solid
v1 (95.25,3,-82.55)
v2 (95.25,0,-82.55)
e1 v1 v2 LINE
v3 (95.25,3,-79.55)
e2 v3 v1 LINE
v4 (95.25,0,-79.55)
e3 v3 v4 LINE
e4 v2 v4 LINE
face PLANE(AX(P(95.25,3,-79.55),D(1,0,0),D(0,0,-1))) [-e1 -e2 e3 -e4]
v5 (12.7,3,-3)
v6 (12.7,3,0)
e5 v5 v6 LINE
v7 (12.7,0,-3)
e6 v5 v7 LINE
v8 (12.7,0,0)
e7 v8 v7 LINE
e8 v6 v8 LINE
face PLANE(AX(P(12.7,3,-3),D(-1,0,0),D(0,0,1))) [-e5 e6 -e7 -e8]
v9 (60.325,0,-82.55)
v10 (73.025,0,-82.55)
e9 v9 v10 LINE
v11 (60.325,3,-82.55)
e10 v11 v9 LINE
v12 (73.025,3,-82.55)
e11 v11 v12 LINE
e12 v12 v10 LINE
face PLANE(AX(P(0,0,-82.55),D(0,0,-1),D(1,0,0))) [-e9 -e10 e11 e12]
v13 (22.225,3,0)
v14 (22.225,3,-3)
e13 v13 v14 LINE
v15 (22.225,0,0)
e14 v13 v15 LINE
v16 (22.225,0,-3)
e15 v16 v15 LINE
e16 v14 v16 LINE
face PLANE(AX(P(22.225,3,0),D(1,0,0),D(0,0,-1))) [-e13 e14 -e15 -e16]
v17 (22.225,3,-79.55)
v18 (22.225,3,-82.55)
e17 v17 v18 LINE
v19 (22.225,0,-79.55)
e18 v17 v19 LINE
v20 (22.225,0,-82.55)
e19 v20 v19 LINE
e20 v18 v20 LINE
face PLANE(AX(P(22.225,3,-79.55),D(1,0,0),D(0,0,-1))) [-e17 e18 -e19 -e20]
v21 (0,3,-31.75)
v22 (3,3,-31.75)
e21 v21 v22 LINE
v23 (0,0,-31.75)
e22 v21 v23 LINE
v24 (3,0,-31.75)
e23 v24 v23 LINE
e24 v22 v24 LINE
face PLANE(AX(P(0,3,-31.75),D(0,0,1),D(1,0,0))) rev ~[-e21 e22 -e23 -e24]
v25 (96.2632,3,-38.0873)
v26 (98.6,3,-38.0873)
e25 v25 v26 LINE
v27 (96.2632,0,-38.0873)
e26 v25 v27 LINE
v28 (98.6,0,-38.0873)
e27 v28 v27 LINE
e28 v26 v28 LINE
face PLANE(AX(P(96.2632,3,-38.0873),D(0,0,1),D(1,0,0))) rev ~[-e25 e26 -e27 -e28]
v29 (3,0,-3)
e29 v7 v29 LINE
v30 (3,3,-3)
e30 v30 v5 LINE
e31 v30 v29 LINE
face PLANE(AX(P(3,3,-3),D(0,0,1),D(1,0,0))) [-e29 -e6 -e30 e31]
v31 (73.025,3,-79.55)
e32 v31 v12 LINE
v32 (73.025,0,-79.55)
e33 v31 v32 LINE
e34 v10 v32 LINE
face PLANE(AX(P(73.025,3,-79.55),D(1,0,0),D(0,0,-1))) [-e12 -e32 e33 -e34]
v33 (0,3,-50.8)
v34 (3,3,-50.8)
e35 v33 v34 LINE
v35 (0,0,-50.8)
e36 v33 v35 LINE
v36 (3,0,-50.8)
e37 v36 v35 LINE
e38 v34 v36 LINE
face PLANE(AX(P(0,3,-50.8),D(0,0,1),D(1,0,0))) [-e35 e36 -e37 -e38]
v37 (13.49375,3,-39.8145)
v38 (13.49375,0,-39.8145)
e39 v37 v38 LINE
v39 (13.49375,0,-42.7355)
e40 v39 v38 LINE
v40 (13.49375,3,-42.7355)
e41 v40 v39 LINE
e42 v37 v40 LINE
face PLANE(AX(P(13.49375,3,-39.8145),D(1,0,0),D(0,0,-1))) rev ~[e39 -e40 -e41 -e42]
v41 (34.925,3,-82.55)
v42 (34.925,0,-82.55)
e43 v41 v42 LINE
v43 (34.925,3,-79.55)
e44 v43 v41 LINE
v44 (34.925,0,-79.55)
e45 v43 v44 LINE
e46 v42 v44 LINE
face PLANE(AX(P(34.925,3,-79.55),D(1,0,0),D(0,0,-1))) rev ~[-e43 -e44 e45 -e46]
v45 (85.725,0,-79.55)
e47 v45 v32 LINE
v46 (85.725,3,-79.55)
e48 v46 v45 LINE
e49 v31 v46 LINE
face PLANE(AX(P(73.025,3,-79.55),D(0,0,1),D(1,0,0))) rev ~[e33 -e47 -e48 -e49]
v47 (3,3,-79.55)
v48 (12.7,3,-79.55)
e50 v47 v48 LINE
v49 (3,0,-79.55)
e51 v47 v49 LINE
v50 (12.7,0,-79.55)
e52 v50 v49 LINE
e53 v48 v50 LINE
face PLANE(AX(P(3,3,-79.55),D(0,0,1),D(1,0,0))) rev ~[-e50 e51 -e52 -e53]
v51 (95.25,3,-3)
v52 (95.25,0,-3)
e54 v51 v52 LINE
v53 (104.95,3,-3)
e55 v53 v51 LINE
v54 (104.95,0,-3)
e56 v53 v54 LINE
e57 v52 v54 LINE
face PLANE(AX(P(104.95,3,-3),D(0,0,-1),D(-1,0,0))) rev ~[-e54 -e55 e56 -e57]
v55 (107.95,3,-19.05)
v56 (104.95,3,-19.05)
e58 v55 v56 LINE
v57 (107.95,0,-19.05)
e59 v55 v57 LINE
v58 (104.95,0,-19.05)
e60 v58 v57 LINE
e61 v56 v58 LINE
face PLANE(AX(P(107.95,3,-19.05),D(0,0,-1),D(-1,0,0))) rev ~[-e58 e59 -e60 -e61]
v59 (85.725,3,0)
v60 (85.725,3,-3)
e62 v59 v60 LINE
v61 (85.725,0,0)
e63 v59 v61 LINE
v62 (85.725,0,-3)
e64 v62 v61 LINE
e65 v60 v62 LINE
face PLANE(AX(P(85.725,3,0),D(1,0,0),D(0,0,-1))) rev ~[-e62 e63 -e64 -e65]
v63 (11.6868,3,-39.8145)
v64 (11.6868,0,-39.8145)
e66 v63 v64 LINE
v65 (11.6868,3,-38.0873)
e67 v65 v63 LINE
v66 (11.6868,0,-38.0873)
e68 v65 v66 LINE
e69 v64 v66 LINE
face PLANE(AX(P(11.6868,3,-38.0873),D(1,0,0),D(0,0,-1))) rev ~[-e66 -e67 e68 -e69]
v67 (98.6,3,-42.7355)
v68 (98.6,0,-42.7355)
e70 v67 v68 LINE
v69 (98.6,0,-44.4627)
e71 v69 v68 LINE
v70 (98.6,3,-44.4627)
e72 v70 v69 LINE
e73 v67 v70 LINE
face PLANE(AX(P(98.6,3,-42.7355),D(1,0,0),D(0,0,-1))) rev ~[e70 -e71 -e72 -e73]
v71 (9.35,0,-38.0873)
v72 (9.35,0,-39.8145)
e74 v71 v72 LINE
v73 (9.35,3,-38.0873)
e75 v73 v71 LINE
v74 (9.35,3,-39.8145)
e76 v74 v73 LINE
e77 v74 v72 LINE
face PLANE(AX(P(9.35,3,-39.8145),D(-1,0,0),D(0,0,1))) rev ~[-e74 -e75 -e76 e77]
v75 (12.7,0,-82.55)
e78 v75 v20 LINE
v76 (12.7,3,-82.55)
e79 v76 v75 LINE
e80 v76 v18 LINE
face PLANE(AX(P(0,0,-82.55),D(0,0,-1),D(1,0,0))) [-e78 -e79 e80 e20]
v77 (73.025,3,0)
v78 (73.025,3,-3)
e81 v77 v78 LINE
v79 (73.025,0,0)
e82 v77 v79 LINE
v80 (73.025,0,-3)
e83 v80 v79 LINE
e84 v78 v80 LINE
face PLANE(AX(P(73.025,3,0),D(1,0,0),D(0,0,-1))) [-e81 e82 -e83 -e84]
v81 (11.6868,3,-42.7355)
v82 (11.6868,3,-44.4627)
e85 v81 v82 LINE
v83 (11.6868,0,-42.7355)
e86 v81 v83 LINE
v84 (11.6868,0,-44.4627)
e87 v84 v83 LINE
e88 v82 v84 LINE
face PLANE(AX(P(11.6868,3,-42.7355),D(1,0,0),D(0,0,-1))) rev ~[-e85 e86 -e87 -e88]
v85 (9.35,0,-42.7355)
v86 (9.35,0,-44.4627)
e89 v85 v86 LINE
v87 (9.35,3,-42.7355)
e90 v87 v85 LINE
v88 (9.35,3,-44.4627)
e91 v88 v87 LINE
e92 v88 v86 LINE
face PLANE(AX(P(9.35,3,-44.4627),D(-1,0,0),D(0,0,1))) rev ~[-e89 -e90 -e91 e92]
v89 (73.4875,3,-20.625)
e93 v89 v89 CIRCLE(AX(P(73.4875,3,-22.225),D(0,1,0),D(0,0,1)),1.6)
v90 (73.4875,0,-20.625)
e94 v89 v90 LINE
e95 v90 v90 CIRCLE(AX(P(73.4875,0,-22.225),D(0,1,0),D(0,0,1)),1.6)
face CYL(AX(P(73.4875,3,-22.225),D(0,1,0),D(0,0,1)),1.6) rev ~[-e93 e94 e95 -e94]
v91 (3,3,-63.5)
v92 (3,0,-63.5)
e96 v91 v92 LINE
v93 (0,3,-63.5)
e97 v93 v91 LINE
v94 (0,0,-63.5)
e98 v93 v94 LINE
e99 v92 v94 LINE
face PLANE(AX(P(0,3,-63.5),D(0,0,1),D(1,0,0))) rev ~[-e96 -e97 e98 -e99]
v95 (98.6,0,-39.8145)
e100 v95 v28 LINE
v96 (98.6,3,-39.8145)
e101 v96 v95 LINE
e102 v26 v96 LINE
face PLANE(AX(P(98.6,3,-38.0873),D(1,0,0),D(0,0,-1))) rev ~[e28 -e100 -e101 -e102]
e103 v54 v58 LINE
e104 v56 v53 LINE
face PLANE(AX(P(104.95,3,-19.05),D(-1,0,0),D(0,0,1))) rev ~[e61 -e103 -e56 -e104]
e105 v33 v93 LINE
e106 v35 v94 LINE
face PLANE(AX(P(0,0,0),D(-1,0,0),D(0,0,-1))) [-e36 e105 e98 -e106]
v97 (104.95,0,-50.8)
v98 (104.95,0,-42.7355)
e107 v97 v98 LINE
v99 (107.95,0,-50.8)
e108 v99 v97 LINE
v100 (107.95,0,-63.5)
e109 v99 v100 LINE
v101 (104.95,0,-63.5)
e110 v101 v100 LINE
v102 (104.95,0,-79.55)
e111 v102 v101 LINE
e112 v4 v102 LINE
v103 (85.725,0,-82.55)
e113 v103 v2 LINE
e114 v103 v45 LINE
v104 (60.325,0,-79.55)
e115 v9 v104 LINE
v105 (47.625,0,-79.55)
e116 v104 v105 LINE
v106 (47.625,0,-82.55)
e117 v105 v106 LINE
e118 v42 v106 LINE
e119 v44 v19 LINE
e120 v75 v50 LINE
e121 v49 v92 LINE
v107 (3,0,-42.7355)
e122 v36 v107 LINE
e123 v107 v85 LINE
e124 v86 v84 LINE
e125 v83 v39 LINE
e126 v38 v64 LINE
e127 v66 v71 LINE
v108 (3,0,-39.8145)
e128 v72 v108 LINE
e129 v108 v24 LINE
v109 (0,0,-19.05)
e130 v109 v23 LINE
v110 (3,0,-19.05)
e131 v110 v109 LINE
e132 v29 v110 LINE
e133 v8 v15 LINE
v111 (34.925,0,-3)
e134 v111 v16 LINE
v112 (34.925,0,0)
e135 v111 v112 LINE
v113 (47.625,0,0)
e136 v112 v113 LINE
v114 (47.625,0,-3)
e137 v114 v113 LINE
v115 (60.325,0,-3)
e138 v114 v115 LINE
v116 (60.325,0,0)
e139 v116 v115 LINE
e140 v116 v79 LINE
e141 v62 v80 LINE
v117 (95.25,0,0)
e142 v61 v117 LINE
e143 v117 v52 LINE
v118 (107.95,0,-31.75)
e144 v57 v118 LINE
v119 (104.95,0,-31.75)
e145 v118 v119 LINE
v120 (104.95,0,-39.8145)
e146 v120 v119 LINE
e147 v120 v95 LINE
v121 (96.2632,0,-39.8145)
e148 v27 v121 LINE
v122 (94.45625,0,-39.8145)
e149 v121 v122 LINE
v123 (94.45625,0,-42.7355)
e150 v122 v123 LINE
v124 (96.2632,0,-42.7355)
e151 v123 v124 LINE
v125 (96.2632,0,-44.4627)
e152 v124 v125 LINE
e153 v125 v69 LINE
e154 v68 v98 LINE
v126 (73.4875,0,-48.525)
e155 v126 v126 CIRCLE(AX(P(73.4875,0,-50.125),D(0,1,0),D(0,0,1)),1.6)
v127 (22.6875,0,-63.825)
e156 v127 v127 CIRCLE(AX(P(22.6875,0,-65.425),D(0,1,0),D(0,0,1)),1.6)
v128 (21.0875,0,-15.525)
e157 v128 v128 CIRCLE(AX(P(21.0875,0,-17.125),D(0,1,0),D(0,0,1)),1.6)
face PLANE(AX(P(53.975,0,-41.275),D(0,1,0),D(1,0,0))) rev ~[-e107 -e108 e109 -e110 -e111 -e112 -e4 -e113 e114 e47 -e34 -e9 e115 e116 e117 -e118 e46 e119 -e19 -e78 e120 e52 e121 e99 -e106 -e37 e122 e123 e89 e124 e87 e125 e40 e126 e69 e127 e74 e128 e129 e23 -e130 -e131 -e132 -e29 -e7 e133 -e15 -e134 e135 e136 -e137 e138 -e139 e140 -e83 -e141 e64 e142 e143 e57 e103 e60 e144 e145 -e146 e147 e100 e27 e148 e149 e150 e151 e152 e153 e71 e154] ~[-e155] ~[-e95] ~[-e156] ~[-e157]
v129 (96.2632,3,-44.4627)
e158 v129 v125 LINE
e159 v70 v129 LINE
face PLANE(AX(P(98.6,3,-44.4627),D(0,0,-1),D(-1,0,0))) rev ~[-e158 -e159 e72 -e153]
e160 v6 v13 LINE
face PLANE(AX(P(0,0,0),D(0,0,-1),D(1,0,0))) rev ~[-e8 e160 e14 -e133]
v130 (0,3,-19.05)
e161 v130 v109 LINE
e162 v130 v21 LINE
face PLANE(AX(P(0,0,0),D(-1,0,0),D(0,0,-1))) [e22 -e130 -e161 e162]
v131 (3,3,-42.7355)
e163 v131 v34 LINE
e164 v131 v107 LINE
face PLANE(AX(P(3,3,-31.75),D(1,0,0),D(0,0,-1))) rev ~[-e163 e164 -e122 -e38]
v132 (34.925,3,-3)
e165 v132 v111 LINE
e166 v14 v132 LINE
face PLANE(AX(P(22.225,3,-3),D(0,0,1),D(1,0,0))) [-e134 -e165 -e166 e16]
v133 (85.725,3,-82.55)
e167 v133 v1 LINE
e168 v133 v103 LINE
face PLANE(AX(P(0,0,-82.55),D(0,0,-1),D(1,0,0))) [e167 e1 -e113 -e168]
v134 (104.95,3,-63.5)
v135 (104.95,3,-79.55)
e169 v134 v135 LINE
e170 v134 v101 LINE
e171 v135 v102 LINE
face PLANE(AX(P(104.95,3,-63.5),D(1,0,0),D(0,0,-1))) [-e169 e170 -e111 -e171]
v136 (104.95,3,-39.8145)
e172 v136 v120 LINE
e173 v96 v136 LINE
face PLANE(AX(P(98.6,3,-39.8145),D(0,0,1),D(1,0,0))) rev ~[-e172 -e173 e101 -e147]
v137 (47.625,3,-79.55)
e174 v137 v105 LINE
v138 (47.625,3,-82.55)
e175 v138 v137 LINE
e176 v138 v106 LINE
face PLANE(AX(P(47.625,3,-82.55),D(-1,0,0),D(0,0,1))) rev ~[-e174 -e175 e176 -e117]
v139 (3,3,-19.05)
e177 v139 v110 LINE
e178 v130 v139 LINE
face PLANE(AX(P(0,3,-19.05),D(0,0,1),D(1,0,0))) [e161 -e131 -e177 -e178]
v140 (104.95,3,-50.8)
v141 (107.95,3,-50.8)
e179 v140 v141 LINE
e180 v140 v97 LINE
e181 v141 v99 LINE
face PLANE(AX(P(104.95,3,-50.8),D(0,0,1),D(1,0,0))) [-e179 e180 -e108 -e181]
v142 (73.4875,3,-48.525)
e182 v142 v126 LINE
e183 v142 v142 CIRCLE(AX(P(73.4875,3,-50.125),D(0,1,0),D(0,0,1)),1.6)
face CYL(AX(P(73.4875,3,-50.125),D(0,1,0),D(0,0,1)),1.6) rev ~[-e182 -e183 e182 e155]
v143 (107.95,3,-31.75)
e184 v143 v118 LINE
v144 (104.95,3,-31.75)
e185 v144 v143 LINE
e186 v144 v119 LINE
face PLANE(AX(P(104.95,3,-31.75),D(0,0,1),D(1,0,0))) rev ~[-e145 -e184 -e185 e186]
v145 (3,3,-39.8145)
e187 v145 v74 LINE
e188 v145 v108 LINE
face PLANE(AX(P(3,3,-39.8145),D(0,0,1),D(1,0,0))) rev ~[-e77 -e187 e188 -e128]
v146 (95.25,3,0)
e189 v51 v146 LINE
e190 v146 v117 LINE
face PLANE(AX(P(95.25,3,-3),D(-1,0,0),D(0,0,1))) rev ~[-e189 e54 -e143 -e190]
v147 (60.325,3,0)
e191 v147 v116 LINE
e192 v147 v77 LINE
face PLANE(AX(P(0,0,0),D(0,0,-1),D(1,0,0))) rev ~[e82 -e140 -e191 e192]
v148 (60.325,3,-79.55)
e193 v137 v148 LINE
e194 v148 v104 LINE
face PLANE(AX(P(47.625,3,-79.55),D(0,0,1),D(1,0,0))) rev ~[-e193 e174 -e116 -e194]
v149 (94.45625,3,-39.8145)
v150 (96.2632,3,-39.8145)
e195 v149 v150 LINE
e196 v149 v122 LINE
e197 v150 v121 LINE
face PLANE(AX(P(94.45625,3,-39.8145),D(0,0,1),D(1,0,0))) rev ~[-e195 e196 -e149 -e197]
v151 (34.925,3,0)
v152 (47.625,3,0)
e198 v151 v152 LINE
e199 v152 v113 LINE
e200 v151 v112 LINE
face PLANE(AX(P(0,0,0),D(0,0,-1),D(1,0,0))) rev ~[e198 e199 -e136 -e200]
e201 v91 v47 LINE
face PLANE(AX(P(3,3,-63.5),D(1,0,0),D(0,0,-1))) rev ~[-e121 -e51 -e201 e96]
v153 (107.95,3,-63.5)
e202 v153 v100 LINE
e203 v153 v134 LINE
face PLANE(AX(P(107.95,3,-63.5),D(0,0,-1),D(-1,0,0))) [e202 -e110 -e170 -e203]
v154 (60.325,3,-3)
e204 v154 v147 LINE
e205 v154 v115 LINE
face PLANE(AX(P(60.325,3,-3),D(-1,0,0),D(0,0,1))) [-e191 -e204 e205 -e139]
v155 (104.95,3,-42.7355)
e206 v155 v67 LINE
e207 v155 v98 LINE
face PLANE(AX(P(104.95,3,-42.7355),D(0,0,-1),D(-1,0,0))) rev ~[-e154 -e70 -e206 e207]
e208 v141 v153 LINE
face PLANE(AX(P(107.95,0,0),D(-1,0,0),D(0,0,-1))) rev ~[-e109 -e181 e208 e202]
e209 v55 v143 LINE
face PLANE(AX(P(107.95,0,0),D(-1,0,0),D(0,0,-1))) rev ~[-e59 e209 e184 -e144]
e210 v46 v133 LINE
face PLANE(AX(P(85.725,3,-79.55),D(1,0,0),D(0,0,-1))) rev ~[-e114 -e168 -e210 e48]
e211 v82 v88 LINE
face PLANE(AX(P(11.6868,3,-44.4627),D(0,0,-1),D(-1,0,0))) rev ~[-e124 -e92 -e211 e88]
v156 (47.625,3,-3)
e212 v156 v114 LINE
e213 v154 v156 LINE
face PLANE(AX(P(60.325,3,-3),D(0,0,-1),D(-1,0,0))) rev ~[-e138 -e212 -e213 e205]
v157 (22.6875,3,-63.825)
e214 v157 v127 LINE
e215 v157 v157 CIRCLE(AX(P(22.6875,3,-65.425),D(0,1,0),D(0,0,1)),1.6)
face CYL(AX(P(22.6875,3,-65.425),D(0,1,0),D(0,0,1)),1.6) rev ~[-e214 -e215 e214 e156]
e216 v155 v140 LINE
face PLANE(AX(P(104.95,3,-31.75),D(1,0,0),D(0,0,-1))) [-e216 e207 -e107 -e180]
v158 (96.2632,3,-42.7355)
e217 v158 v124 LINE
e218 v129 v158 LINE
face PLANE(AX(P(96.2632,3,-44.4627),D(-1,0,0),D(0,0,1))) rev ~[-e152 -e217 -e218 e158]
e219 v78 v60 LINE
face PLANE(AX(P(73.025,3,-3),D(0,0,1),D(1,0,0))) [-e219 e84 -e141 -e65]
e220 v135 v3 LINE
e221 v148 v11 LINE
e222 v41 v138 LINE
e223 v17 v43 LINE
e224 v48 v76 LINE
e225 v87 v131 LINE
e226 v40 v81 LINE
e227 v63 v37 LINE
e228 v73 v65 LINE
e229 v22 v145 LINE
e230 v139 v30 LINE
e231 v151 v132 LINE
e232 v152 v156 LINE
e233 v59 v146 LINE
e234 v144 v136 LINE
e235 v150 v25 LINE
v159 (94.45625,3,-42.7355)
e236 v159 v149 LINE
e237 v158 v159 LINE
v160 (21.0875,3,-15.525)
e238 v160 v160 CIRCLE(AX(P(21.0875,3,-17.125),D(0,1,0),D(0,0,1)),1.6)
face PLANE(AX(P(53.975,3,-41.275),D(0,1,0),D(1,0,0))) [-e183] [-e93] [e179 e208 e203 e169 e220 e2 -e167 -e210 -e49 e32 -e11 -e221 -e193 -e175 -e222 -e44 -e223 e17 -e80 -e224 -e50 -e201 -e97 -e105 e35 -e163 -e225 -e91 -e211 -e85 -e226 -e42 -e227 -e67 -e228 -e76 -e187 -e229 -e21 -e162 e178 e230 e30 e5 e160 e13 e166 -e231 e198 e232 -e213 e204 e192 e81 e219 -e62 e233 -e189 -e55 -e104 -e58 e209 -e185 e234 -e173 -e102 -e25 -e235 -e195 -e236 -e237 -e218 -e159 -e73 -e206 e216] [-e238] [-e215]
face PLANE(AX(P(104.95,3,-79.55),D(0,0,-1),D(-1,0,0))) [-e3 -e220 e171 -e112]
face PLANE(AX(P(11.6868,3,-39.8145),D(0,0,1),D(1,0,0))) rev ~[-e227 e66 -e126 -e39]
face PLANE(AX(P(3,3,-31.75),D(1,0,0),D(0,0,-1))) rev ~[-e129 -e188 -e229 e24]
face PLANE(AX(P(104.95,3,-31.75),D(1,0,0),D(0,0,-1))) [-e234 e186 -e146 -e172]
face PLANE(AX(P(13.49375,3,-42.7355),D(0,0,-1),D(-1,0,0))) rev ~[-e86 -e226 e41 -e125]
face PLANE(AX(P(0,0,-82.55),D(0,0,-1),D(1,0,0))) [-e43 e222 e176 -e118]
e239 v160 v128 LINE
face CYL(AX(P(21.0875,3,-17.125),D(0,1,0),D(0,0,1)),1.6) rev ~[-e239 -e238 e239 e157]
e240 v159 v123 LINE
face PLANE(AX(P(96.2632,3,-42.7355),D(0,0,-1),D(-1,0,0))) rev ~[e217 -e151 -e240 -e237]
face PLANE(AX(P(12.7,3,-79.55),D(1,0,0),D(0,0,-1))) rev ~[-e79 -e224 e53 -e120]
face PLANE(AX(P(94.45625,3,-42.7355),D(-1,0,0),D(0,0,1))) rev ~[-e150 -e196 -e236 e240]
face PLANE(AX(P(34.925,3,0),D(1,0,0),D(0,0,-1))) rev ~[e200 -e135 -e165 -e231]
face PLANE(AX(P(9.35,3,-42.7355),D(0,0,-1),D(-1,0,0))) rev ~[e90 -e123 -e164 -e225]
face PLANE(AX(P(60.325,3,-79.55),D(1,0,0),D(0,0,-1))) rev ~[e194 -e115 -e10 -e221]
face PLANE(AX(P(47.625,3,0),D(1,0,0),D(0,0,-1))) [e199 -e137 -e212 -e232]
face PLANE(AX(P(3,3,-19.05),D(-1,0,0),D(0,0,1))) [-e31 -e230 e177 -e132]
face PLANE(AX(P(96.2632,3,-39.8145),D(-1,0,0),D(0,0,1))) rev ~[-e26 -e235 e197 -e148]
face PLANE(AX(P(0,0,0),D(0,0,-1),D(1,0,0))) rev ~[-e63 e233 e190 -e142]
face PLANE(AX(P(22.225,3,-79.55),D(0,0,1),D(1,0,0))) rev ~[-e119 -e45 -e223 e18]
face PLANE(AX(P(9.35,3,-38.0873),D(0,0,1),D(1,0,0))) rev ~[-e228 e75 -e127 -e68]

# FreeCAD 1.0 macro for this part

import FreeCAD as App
import Part
import Sketcher

V = App.Vector
Q = App.Units.Quantity

doc = App.newDocument("Part")
body = doc.addObject("PartDesign::Body", "Body")

# Sketch on XZ plane
sketch1 = body.newObject("Sketcher::SketchObject", "Sketch")
sketch1.AttachmentSupport = (doc.getObject("XZ_Plane"), [""])
sketch1.MapMode = "FlatFace"
sketch1.addGeometry([
    Part.LineSegment(V(0, -82.55, 0), V(0, 0, 0)),
    Part.LineSegment(V(0, 0, 0), V(107.95, 0, 0)),
    Part.LineSegment(V(107.95, 0, 0), V(107.95, -82.55, 0)),
    Part.LineSegment(V(107.95, -82.55, 0), V(0, -82.55, 0)),
], False)
sketch1.addConstraint([
    Sketcher.Constraint("Coincident", 0, 2, 1, 1),
    Sketcher.Constraint("Coincident", 1, 2, 2, 1),
    Sketcher.Constraint("Coincident", 2, 2, 3, 1),
    Sketcher.Constraint("Coincident", 3, 2, 0, 1),
    Sketcher.Constraint("Vertical", 0),
    Sketcher.Constraint("Horizontal", 1),
    Sketcher.Constraint("Vertical", 2),
    Sketcher.Constraint("Horizontal", 3),
    Sketcher.Constraint("Coincident", 0, 2, -1, 1),
    Sketcher.Constraint("DistanceX", 1, 1, 1, 2, Q("4.25 in")),
    Sketcher.Constraint("DistanceY", 0, 1, 0, 2, Q("3.25 in")),
])
pad1 = body.newObject("PartDesign::Pad", "Pad")
pad1.Profile = sketch1
pad1.Length = 3
pad1.Reversed = True

# Sketch on XZ plane
sketch2 = body.newObject("Sketcher::SketchObject", "Sketch001")
sketch2.AttachmentSupport = (doc.getObject("XZ_Plane"), [""])
sketch2.MapMode = "FlatFace"
sketch2.AttachmentOffset = App.Placement(V(0, 0, -3), App.Rotation())
sketch2.addGeometry([
    Part.LineSegment(V(22.225, -3, 0), V(22.225, 0, 0)),
    Part.LineSegment(V(22.225, 0, 0), V(34.925, 0, 0)),
    Part.LineSegment(V(34.925, 0, 0), V(34.925, -3, 0)),
    Part.LineSegment(V(34.925, -3, 0), V(22.225, -3, 0)),
], False)
sketch2.addConstraint([
    Sketcher.Constraint("Coincident", 0, 2, 1, 1),
    Sketcher.Constraint("Coincident", 1, 2, 2, 1),
    Sketcher.Constraint("Coincident", 2, 2, 3, 1),
    Sketcher.Constraint("Coincident", 3, 2, 0, 1),
    Sketcher.Constraint("Vertical", 0),
    Sketcher.Constraint("Horizontal", 1),
    Sketcher.Constraint("Vertical", 2),
    Sketcher.Constraint("Horizontal", 3),
    Sketcher.Constraint("PointOnObject", 0, 2, -1),
    Sketcher.Constraint("DistanceX", 1, 1, 1, 2, Q("0.5 in")),
    Sketcher.Constraint("DistanceX", -1, 1, 0, 2, Q("0.875 in")),
    Sketcher.Constraint("DistanceY", 0, 1, 0, 2, 3.0),
])
pocket1 = body.newObject("PartDesign::Pocket", "Pocket")
pocket1.Profile = sketch2
pocket1.Type = "UpToFirst"
pocket1.Reversed = True

# Sketch on XZ plane
sketch3 = body.newObject("Sketcher::SketchObject", "Sketch002")
sketch3.AttachmentSupport = (doc.getObject("XZ_Plane"), [""])
sketch3.MapMode = "FlatFace"
sketch3.AttachmentOffset = App.Placement(V(0, 0, -3), App.Rotation())
sketch3.addGeometry([
    Part.LineSegment(V(73.025, -3, 0), V(73.025, 0, 0)),
    Part.LineSegment(V(73.025, 0, 0), V(85.725, 0, 0)),
    Part.LineSegment(V(85.725, 0, 0), V(85.725, -3, 0)),
    Part.LineSegment(V(85.725, -3, 0), V(73.025, -3, 0)),
], False)
sketch3.addConstraint([
    Sketcher.Constraint("Coincident", 0, 2, 1, 1),
    Sketcher.Constraint("Coincident", 1, 2, 2, 1),
    Sketcher.Constraint("Coincident", 2, 2, 3, 1),
    Sketcher.Constraint("Coincident", 3, 2, 0, 1),
    Sketcher.Constraint("Vertical", 0),
    Sketcher.Constraint("Horizontal", 1),
    Sketcher.Constraint("Vertical", 2),
    Sketcher.Constraint("Horizontal", 3),
    Sketcher.Constraint("PointOnObject", 0, 2, -1),
    Sketcher.Constraint("DistanceX", 1, 1, 1, 2, Q("0.5 in")),
    Sketcher.Constraint("DistanceX", -1, 1, 0, 2, Q("2.875 in")),
    Sketcher.Constraint("DistanceY", 0, 1, 0, 2, 3.0),
])
pocket2 = body.newObject("PartDesign::Pocket", "Pocket001")
pocket2.Profile = sketch3
pocket2.Type = "UpToFirst"
pocket2.Reversed = True

# Sketch on XZ plane
sketch4 = body.newObject("Sketcher::SketchObject", "Sketch003")
sketch4.AttachmentSupport = (doc.getObject("XZ_Plane"), [""])
sketch4.MapMode = "FlatFace"
sketch4.AttachmentOffset = App.Placement(V(0, 0, -3), App.Rotation())
sketch4.addGeometry([
    Part.LineSegment(V(73.025, -82.55, 0), V(73.025, -79.55, 0)),
    Part.LineSegment(V(73.025, -79.55, 0), V(85.725, -79.55, 0)),
    Part.LineSegment(V(85.725, -79.55, 0), V(85.725, -82.55, 0)),
    Part.LineSegment(V(85.725, -82.55, 0), V(73.025, -82.55, 0)),
], False)
sketch4.addConstraint([
    Sketcher.Constraint("Coincident", 0, 2, 1, 1),
    Sketcher.Constraint("Coincident", 1, 2, 2, 1),
    Sketcher.Constraint("Coincident", 2, 2, 3, 1),
    Sketcher.Constraint("Coincident", 3, 2, 0, 1),
    Sketcher.Constraint("Vertical", 0),
    Sketcher.Constraint("Horizontal", 1),
    Sketcher.Constraint("Vertical", 2),
    Sketcher.Constraint("Horizontal", 3),
    Sketcher.Constraint("DistanceX", 1, 1, 1, 2, Q("0.5 in")),
    Sketcher.Constraint("DistanceY", 2, 2, -1, 1, Q("3.25 in")),
    Sketcher.Constraint("DistanceX", -1, 1, 0, 2, Q("2.875 in")),
    Sketcher.Constraint("DistanceY", 0, 1, 0, 2, 3.0),
])
pocket3 = body.newObject("PartDesign::Pocket", "Pocket002")
pocket3.Profile = sketch4
pocket3.Type = "UpToFirst"
pocket3.Reversed = True

# Sketch on XZ plane
sketch5 = body.newObject("Sketcher::SketchObject", "Sketch004")
sketch5.AttachmentSupport = (doc.getObject("XZ_Plane"), [""])
sketch5.MapMode = "FlatFace"
sketch5.AttachmentOffset = App.Placement(V(0, 0, -3), App.Rotation())
sketch5.addGeometry([
    Part.LineSegment(V(0, -50.8, 0), V(0, -31.75, 0)),
    Part.LineSegment(V(0, -31.75, 0), V(3, -31.75, 0)),
    Part.LineSegment(V(3, -31.75, 0), V(3, -50.8, 0)),
    Part.LineSegment(V(3, -50.8, 0), V(0, -50.8, 0)),
], False)
sketch5.addConstraint([
    Sketcher.Constraint("Coincident", 0, 2, 1, 1),
    Sketcher.Constraint("Coincident", 1, 2, 2, 1),
    Sketcher.Constraint("Coincident", 2, 2, 3, 1),
    Sketcher.Constraint("Coincident", 3, 2, 0, 1),
    Sketcher.Constraint("Vertical", 0),
    Sketcher.Constraint("Horizontal", 1),
    Sketcher.Constraint("Vertical", 2),
    Sketcher.Constraint("Horizontal", 3),
    Sketcher.Constraint("PointOnObject", 0, 2, -2),
    Sketcher.Constraint("DistanceY", 2, 2, -1, 1, Q("2 in")),
    Sketcher.Constraint("DistanceY", 0, 1, 0, 2, Q("0.75 in")),
    Sketcher.Constraint("DistanceX", 1, 1, 1, 2, 3.0),
])
pocket4 = body.newObject("PartDesign::Pocket", "Pocket003")
pocket4.Profile = sketch5
pocket4.Type = "UpToFirst"
pocket4.Reversed = True

# Sketch on XZ plane
sketch6 = body.newObject("Sketcher::SketchObject", "Sketch005")
sketch6.AttachmentSupport = (doc.getObject("XZ_Plane"), [""])
sketch6.MapMode = "FlatFace"
sketch6.AttachmentOffset = App.Placement(V(0, 0, -3), App.Rotation())
sketch6.addGeometry([
    Part.LineSegment(V(22.225, -82.55, 0), V(22.225, -79.55, 0)),
    Part.LineSegment(V(22.225, -79.55, 0), V(34.925, -79.55, 0)),
    Part.LineSegment(V(34.925, -79.55, 0), V(34.925, -82.55, 0)),
    Part.LineSegment(V(34.925, -82.55, 0), V(22.225, -82.55, 0)),
], False)
sketch6.addConstraint([
    Sketcher.Constraint("Coincident", 0, 2, 1, 1),
    Sketcher.Constraint("Coincident", 1, 2, 2, 1),
    Sketcher.Constraint("Coincident", 2, 2, 3, 1),
    Sketcher.Constraint("Coincident", 3, 2, 0, 1),
    Sketcher.Constraint("Vertical", 0),
    Sketcher.Constraint("Horizontal", 1),
    Sketcher.Constraint("Vertical", 2),
    Sketcher.Constraint("Horizontal", 3),
    Sketcher.Constraint("DistanceX", 1, 1, 1, 2, Q("0.5 in")),
    Sketcher.Constraint("DistanceY", 2, 2, -1, 1, Q("3.25 in")),
    Sketcher.Constraint("DistanceX", -1, 1, 0, 2, Q("0.875 in")),
    Sketcher.Constraint("DistanceY", 0, 1, 0, 2, 3.0),
])
pocket5 = body.newObject("PartDesign::Pocket", "Pocket004")
pocket5.Profile = sketch6
pocket5.Type = "UpToFirst"
pocket5.Reversed = True

# Sketch on XZ plane
sketch7 = body.newObject("Sketcher::SketchObject", "Sketch006")
sketch7.AttachmentSupport = (doc.getObject("XZ_Plane"), [""])
sketch7.MapMode = "FlatFace"
sketch7.AttachmentOffset = App.Placement(V(0, 0, -3), App.Rotation())
sketch7.addGeometry([
    Part.LineSegment(V(60.325, -3, 0), V(47.625, -3, 0)),
    Part.LineSegment(V(47.625, -3, 0), V(47.625, 0, 0)),
    Part.LineSegment(V(47.625, 0, 0), V(60.325, 0, 0)),
    Part.LineSegment(V(60.325, 0, 0), V(60.325, -3, 0)),
], False)
sketch7.addConstraint([
    Sketcher.Constraint("Coincident", 0, 2, 1, 1),
    Sketcher.Constraint("Coincident", 1, 2, 2, 1),
    Sketcher.Constraint("Coincident", 2, 2, 3, 1),
    Sketcher.Constraint("Coincident", 3, 2, 0, 1),
    Sketcher.Constraint("Horizontal", 0),
    Sketcher.Constraint("Vertical", 1),
    Sketcher.Constraint("Horizontal", 2),
    Sketcher.Constraint("Vertical", 3),
    Sketcher.Constraint("PointOnObject", 1, 2, -1),
    Sketcher.Constraint("DistanceX", 0, 2, 0, 1, Q("0.5 in")),
    Sketcher.Constraint("DistanceX", -1, 1, 0, 2, Q("1.875 in")),
    Sketcher.Constraint("DistanceY", 1, 1, 1, 2, 3.0),
])
pocket6 = body.newObject("PartDesign::Pocket", "Pocket005")
pocket6.Profile = sketch7
pocket6.Type = "UpToFirst"
pocket6.Reversed = True

# Sketch on XZ plane
sketch8 = body.newObject("Sketcher::SketchObject", "Sketch007")
sketch8.AttachmentSupport = (doc.getObject("XZ_Plane"), [""])
sketch8.MapMode = "FlatFace"
sketch8.AttachmentOffset = App.Placement(V(0, 0, -3), App.Rotation())
sketch8.addGeometry([
    Part.LineSegment(V(60.325, -82.55, 0), V(47.625, -82.55, 0)),
    Part.LineSegment(V(47.625, -82.55, 0), V(47.625, -79.55, 0)),
    Part.LineSegment(V(47.625, -79.55, 0), V(60.325, -79.55, 0)),
    Part.LineSegment(V(60.325, -79.55, 0), V(60.325, -82.55, 0)),
], False)
sketch8.addConstraint([
    Sketcher.Constraint("Coincident", 0, 2, 1, 1),
    Sketcher.Constraint("Coincident", 1, 2, 2, 1),
    Sketcher.Constraint("Coincident", 2, 2, 3, 1),
    Sketcher.Constraint("Coincident", 3, 2, 0, 1),
    Sketcher.Constraint("Horizontal", 0),
    Sketcher.Constraint("Vertical", 1),
    Sketcher.Constraint("Horizontal", 2),
    Sketcher.Constraint("Vertical", 3),
    Sketcher.Constraint("DistanceX", 0, 2, 0, 1, Q("0.5 in")),
    Sketcher.Constraint("DistanceY", 0, 2, -1, 1, Q("3.25 in")),
    Sketcher.Constraint("DistanceX", -1, 1, 0, 2, Q("1.875 in")),
    Sketcher.Constraint("DistanceY", 1, 1, 1, 2, 3.0),
])
pocket7 = body.newObject("PartDesign::Pocket", "Pocket006")
pocket7.Profile = sketch8
pocket7.Type = "UpToFirst"
pocket7.Reversed = True

# Sketch on XZ plane
sketch9 = body.newObject("Sketcher::SketchObject", "Sketch008")
sketch9.AttachmentSupport = (doc.getObject("XZ_Plane"), [""])
sketch9.MapMode = "FlatFace"
sketch9.AttachmentOffset = App.Placement(V(0, 0, -3), App.Rotation())
sketch9.addGeometry([
    Part.LineSegment(V(3, -19.05, 0), V(0, -19.05, 0)),  # 0
    Part.LineSegment(V(0, -19.05, 0), V(0, 0, 0)),  # 1
    Part.LineSegment(V(0, 0, 0), V(12.7, 0, 0)),  # 2
    Part.LineSegment(V(12.7, 0, 0), V(12.7, -3, 0)),  # 3
    Part.LineSegment(V(12.7, -3, 0), V(3, -3, 0)),  # 4
    Part.LineSegment(V(3, -3, 0), V(3, -19.05, 0)),  # 5
], False)
sketch9.addConstraint([
    Sketcher.Constraint("Coincident", 0, 2, 1, 1),
    Sketcher.Constraint("Coincident", 1, 2, 2, 1),
    Sketcher.Constraint("Coincident", 2, 2, 3, 1),
    Sketcher.Constraint("Coincident", 3, 2, 4, 1),
    Sketcher.Constraint("Coincident", 4, 2, 5, 1),
    Sketcher.Constraint("Coincident", 5, 2, 0, 1),
    Sketcher.Constraint("Horizontal", 0),
    Sketcher.Constraint("Vertical", 1),
    Sketcher.Constraint("Horizontal", 2),
    Sketcher.Constraint("Vertical", 3),
    Sketcher.Constraint("Horizontal", 4),
    Sketcher.Constraint("Vertical", 5),
    Sketcher.Constraint("Coincident", 1, 2, -1, 1),
    Sketcher.Constraint("Equal", 0, 3),
    Sketcher.Constraint("DistanceX", 2, 1, 2, 2, Q("0.5 in")),
    Sketcher.Constraint("DistanceY", 1, 1, 1, 2, Q("0.75 in")),
    Sketcher.Constraint("DistanceX", 0, 2, 0, 1, 3.0),
])
pocket8 = body.newObject("PartDesign::Pocket", "Pocket007")
pocket8.Profile = sketch9
pocket8.Type = "UpToFirst"
pocket8.Reversed = True

# Sketch on XZ plane
sketch10 = body.newObject("Sketcher::SketchObject", "Sketch009")
sketch10.AttachmentSupport = (doc.getObject("XZ_Plane"), [""])
sketch10.MapMode = "FlatFace"
sketch10.AttachmentOffset = App.Placement(V(0, 0, -3), App.Rotation())
sketch10.addGeometry([
    Part.LineSegment(V(107.95, 0, 0), V(107.95, -19.05, 0)),  # 0
    Part.LineSegment(V(107.95, -19.05, 0), V(104.95, -19.05, 0)),  # 1
    Part.LineSegment(V(104.95, -19.05, 0), V(104.95, -3, 0)),  # 2
    Part.LineSegment(V(104.95, -3, 0), V(95.25, -3, 0)),  # 3
    Part.LineSegment(V(95.25, -3, 0), V(95.25, 0, 0)),  # 4
    Part.LineSegment(V(95.25, 0, 0), V(107.95, 0, 0)),  # 5
], False)
sketch10.addConstraint([
    Sketcher.Constraint("Coincident", 0, 2, 1, 1),
    Sketcher.Constraint("Coincident", 1, 2, 2, 1),
    Sketcher.Constraint("Coincident", 2, 2, 3, 1),
    Sketcher.Constraint("Coincident", 3, 2, 4, 1),
    Sketcher.Constraint("Coincident", 4, 2, 5, 1),
    Sketcher.Constraint("Coincident", 5, 2, 0, 1),
    Sketcher.Constraint("Vertical", 0),
    Sketcher.Constraint("Horizontal", 1),
    Sketcher.Constraint("Vertical", 2),
    Sketcher.Constraint("Horizontal", 3),
    Sketcher.Constraint("Vertical", 4),
    Sketcher.Constraint("Horizontal", 5),
    Sketcher.Constraint("PointOnObject", 4, 2, -1),
    Sketcher.Constraint("Equal", 1, 4),
    Sketcher.Constraint("DistanceX", 5, 1, 5, 2, Q("0.5 in")),
    Sketcher.Constraint("DistanceY", 0, 2, 0, 1, Q("0.75 in")),
    Sketcher.Constraint("DistanceX", -1, 1, 0, 2, Q("4.25 in")),
    Sketcher.Constraint("DistanceX", 1, 2, 1, 1, 3.0),
])
pocket9 = body.newObject("PartDesign::Pocket", "Pocket008")
pocket9.Profile = sketch10
pocket9.Type = "UpToFirst"
pocket9.Reversed = True

# Sketch on XZ plane
sketch11 = body.newObject("Sketcher::SketchObject", "Sketch010")
sketch11.AttachmentSupport = (doc.getObject("XZ_Plane"), [""])
sketch11.MapMode = "FlatFace"
sketch11.AttachmentOffset = App.Placement(V(0, 0, -3), App.Rotation())
sketch11.addGeometry([
    Part.LineSegment(V(0, -63.5, 0), V(3, -63.5, 0)),  # 0
    Part.LineSegment(V(3, -63.5, 0), V(3, -79.55, 0)),  # 1
    Part.LineSegment(V(3, -79.55, 0), V(12.7, -79.55, 0)),  # 2
    Part.LineSegment(V(12.7, -79.55, 0), V(12.7, -82.55, 0)),  # 3
    Part.LineSegment(V(12.7, -82.55, 0), V(0, -82.55, 0)),  # 4
    Part.LineSegment(V(0, -82.55, 0), V(0, -63.5, 0)),  # 5
], False)
sketch11.addConstraint([
    Sketcher.Constraint("Coincident", 0, 2, 1, 1),
    Sketcher.Constraint("Coincident", 1, 2, 2, 1),
    Sketcher.Constraint("Coincident", 2, 2, 3, 1),
    Sketcher.Constraint("Coincident", 3, 2, 4, 1),
    Sketcher.Constraint("Coincident", 4, 2, 5, 1),
    Sketcher.Constraint("Coincident", 5, 2, 0, 1),
    Sketcher.Constraint("Horizontal", 0),
    Sketcher.Constraint("Vertical", 1),
    Sketcher.Constraint("Horizontal", 2),
    Sketcher.Constraint("Vertical", 3),
    Sketcher.Constraint("Horizontal", 4),
    Sketcher.Constraint("Vertical", 5),
    Sketcher.Constraint("PointOnObject", 4, 2, -2),
    Sketcher.Constraint("Equal", 0, 3),
    Sketcher.Constraint("DistanceX", 4, 2, 4, 1, Q("0.5 in")),
    Sketcher.Constraint("DistanceY", 5, 1, 5, 2, Q("0.75 in")),
    Sketcher.Constraint("DistanceY", 0, 2, -1, 1, Q("2.5 in")),
    Sketcher.Constraint("DistanceX", 0, 1, 0, 2, 3.0),
])
pocket10 = body.newObject("PartDesign::Pocket", "Pocket009")
pocket10.Profile = sketch11
pocket10.Type = "UpToFirst"
pocket10.Reversed = True

# Sketch on XZ plane
sketch12 = body.newObject("Sketcher::SketchObject", "Sketch011")
sketch12.AttachmentSupport = (doc.getObject("XZ_Plane"), [""])
sketch12.MapMode = "FlatFace"
sketch12.AttachmentOffset = App.Placement(V(0, 0, -3), App.Rotation())
sketch12.addGeometry([
    Part.LineSegment(V(104.95, -50.8, 0), V(104.95, -31.75, 0)),
    Part.LineSegment(V(104.95, -31.75, 0), V(107.95, -31.75, 0)),
    Part.LineSegment(V(107.95, -31.75, 0), V(107.95, -50.8, 0)),
    Part.LineSegment(V(107.95, -50.8, 0), V(104.95, -50.8, 0)),
], False)
sketch12.addConstraint([
    Sketcher.Constraint("Coincident", 0, 2, 1, 1),
    Sketcher.Constraint("Coincident", 1, 2, 2, 1),
    Sketcher.Constraint("Coincident", 2, 2, 3, 1),
    Sketcher.Constraint("Coincident", 3, 2, 0, 1),
    Sketcher.Constraint("Vertical", 0),
    Sketcher.Constraint("Horizontal", 1),
    Sketcher.Constraint("Vertical", 2),
    Sketcher.Constraint("Horizontal", 3),
    Sketcher.Constraint("DistanceY", 2, 2, -1, 1, Q("2 in")),
    Sketcher.Constraint("DistanceY", 0, 1, 0, 2, Q("0.75 in")),
    Sketcher.Constraint("DistanceX", -1, 1, 1, 2, Q("4.25 in")),
    Sketcher.Constraint("DistanceX", 1, 1, 1, 2, 3.0),
])
pocket11 = body.newObject("PartDesign::Pocket", "Pocket010")
pocket11.Profile = sketch12
pocket11.Type = "UpToFirst"
pocket11.Reversed = True

# Sketch on XZ plane
sketch13 = body.newObject("Sketcher::SketchObject", "Sketch012")
sketch13.AttachmentSupport = (doc.getObject("XZ_Plane"), [""])
sketch13.MapMode = "FlatFace"
sketch13.AttachmentOffset = App.Placement(V(0, 0, -3), App.Rotation())
sketch13.addGeometry([
    Part.LineSegment(V(104.95, -63.5, 0), V(107.95, -63.5, 0)),  # 0
    Part.LineSegment(V(107.95, -63.5, 0), V(107.95, -82.55, 0)),  # 1
    Part.LineSegment(V(107.95, -82.55, 0), V(95.25, -82.55, 0)),  # 2
    Part.LineSegment(V(95.25, -82.55, 0), V(95.25, -79.55, 0)),  # 3
    Part.LineSegment(V(95.25, -79.55, 0), V(104.95, -79.55, 0)),  # 4
    Part.LineSegment(V(104.95, -79.55, 0), V(104.95, -63.5, 0)),  # 5
], False)
sketch13.addConstraint([
    Sketcher.Constraint("Coincident", 0, 2, 1, 1),
    Sketcher.Constraint("Coincident", 1, 2, 2, 1),
    Sketcher.Constraint("Coincident", 2, 2, 3, 1),
    Sketcher.Constraint("Coincident", 3, 2, 4, 1),
    Sketcher.Constraint("Coincident", 4, 2, 5, 1),
    Sketcher.Constraint("Coincident", 5, 2, 0, 1),
    Sketcher.Constraint("Horizontal", 0),
    Sketcher.Constraint("Vertical", 1),
    Sketcher.Constraint("Horizontal", 2),
    Sketcher.Constraint("Vertical", 3),
    Sketcher.Constraint("Horizontal", 4),
    Sketcher.Constraint("Vertical", 5),
    Sketcher.Constraint("Equal", 0, 3),
    Sketcher.Constraint("DistanceX", 2, 2, 2, 1, Q("0.5 in")),
    Sketcher.Constraint("DistanceY", 1, 2, 1, 1, Q("0.75 in")),
    Sketcher.Constraint("DistanceY", 0, 2, -1, 1, Q("2.5 in")),
    Sketcher.Constraint("DistanceX", -1, 1, 0, 2, Q("4.25 in")),
    Sketcher.Constraint("DistanceX", 0, 1, 0, 2, 3.0),
])
pocket12 = body.newObject("PartDesign::Pocket", "Pocket011")
pocket12.Profile = sketch13
pocket12.Type = "UpToFirst"
pocket12.Reversed = True

# Sketch on XZ plane
sketch14 = body.newObject("Sketcher::SketchObject", "Sketch013")
sketch14.AttachmentSupport = (doc.getObject("XZ_Plane"), [""])
sketch14.MapMode = "FlatFace"
sketch14.AttachmentOffset = App.Placement(V(0, 0, -3), App.Rotation())
sketch14.addGeometry(Part.Circle(V(22.6875, -65.425, 0), V(0, 0, 1), 1.6), False)
sketch14.addConstraint([
    Sketcher.Constraint("Diameter", 0, 3.2),
    Sketcher.Constraint("DistanceX", -1, 1, 0, 3, 22.6875),
    Sketcher.Constraint("DistanceY", 0, 3, -1, 1, 65.425),
])
pocket13 = body.newObject("PartDesign::Pocket", "Pocket012")
pocket13.Profile = sketch14
pocket13.Type = "UpToFirst"
pocket13.Reversed = True

# Sketch on XZ plane
sketch15 = body.newObject("Sketcher::SketchObject", "Sketch014")
sketch15.AttachmentSupport = (doc.getObject("XZ_Plane"), [""])
sketch15.MapMode = "FlatFace"
sketch15.AttachmentOffset = App.Placement(V(0, 0, -3), App.Rotation())
sketch15.addGeometry(Part.Circle(V(21.0875, -17.125, 0), V(0, 0, 1), 1.6), False)
sketch15.addConstraint([
    Sketcher.Constraint("Diameter", 0, 3.2),
    Sketcher.Constraint("DistanceX", -1, 1, 0, 3, 21.0875),
    Sketcher.Constraint("DistanceY", 0, 3, -1, 1, 17.125),
])
pocket14 = body.newObject("PartDesign::Pocket", "Pocket013")
pocket14.Profile = sketch15
pocket14.Type = "UpToFirst"
pocket14.Reversed = True

# Sketch on XZ plane
sketch16 = body.newObject("Sketcher::SketchObject", "Sketch015")
sketch16.AttachmentSupport = (doc.getObject("XZ_Plane"), [""])
sketch16.MapMode = "FlatFace"
sketch16.AttachmentOffset = App.Placement(V(0, 0, -3), App.Rotation())
sketch16.addGeometry(Part.Circle(V(73.4875, -22.225, 0), V(0, 0, 1), 1.6), False)
sketch16.addConstraint([
    Sketcher.Constraint("Diameter", 0, 3.2),
    Sketcher.Constraint("DistanceY", 0, 3, -1, 1, Q("0.875 in")),
    Sketcher.Constraint("DistanceX", -1, 1, 0, 3, 73.4875),
])
pocket15 = body.newObject("PartDesign::Pocket", "Pocket014")
pocket15.Profile = sketch16
pocket15.Type = "UpToFirst"
pocket15.Reversed = True

# Sketch on XZ plane
sketch17 = body.newObject("Sketcher::SketchObject", "Sketch016")
sketch17.AttachmentSupport = (doc.getObject("XZ_Plane"), [""])
sketch17.MapMode = "FlatFace"
sketch17.AttachmentOffset = App.Placement(V(0, 0, -3), App.Rotation())
sketch17.addGeometry(Part.Circle(V(73.4875, -50.125, 0), V(0, 0, 1), 1.6), False)
sketch17.addConstraint([
    Sketcher.Constraint("Diameter", 0, 3.2),
    Sketcher.Constraint("DistanceX", -1, 1, 0, 3, 73.4875),
    Sketcher.Constraint("DistanceY", 0, 3, -1, 1, 50.125),
])
pocket16 = body.newObject("PartDesign::Pocket", "Pocket015")
pocket16.Profile = sketch17
pocket16.Type = "UpToFirst"
pocket16.Reversed = True

# Sketch on XZ plane
sketch18 = body.newObject("Sketcher::SketchObject", "Sketch017")
sketch18.AttachmentSupport = (doc.getObject("XZ_Plane"), [""])
sketch18.MapMode = "FlatFace"
sketch18.AttachmentOffset = App.Placement(V(0, 0, -3), App.Rotation())
sketch18.addGeometry([
    Part.LineSegment(V(3, -39.8145, 0), V(9.35, -39.8145, 0)),  # 0
    Part.LineSegment(V(9.35, -39.8145, 0), V(9.35, -38.0873, 0)),  # 1
    Part.LineSegment(V(9.35, -38.0873, 0), V(11.6868, -38.0873, 0)),  # 2
    Part.LineSegment(V(11.6868, -38.0873, 0), V(11.6868, -39.8145, 0)),  # 3
    Part.LineSegment(V(11.6868, -39.8145, 0), V(13.49375, -39.8145, 0)),  # 4
    Part.LineSegment(V(13.49375, -39.8145, 0), V(13.49375, -42.7355, 0)),  # 5
    Part.LineSegment(V(13.49375, -42.7355, 0), V(11.6868, -42.7355, 0)),  # 6
    Part.LineSegment(V(11.6868, -42.7355, 0), V(11.6868, -44.4627, 0)),  # 7
    Part.LineSegment(V(11.6868, -44.4627, 0), V(9.35, -44.4627, 0)),  # 8
    Part.LineSegment(V(9.35, -44.4627, 0), V(9.35, -42.7355, 0)),  # 9
    Part.LineSegment(V(9.35, -42.7355, 0), V(3, -42.7355, 0)),  # 10
    Part.LineSegment(V(3, -42.7355, 0), V(3, -39.8145, 0)),  # 11
], False)
sketch18.addConstraint([
    Sketcher.Constraint("Coincident", 0, 2, 1, 1),
    Sketcher.Constraint("Coincident", 1, 2, 2, 1),
    Sketcher.Constraint("Coincident", 2, 2, 3, 1),
    Sketcher.Constraint("Coincident", 3, 2, 4, 1),
    Sketcher.Constraint("Coincident", 4, 2, 5, 1),
    Sketcher.Constraint("Coincident", 5, 2, 6, 1),
    Sketcher.Constraint("Coincident", 6, 2, 7, 1),
    Sketcher.Constraint("Coincident", 7, 2, 8, 1),
    Sketcher.Constraint("Coincident", 8, 2, 9, 1),
    Sketcher.Constraint("Coincident", 9, 2, 10, 1),
    Sketcher.Constraint("Coincident", 10, 2, 11, 1),
    Sketcher.Constraint("Coincident", 11, 2, 0, 1),
    Sketcher.Constraint("Horizontal", 0),
    Sketcher.Constraint("Vertical", 1),
    Sketcher.Constraint("Horizontal", 2),
    Sketcher.Constraint("Vertical", 3),
    Sketcher.Constraint("Horizontal", 4),
    Sketcher.Constraint("Vertical", 5),
    Sketcher.Constraint("Horizontal", 6),
    Sketcher.Constraint("Vertical", 7),
    Sketcher.Constraint("Horizontal", 8),
    Sketcher.Constraint("Vertical", 9),
    Sketcher.Constraint("Horizontal", 10),
    Sketcher.Constraint("Vertical", 11),
    Sketcher.Constraint("Horizontal", 0, 2, 3, 2),
    Sketcher.Constraint("Horizontal", 6, 2, 9, 2),
    Sketcher.Constraint("Vertical", 3, 2, 6, 2),
    Sketcher.Constraint("Vertical", 1, 2, 8, 2),
    Sketcher.Constraint("Equal", 3, 7),
    Sketcher.Constraint("DistanceX", 0, 1, 0, 2, Q("0.25 in")),
    Sketcher.Constraint("DistanceX", 2, 1, 2, 2, Q("0.092 in")),
    Sketcher.Constraint("DistanceY", 1, 1, 1, 2, Q("0.068 in")),
    Sketcher.Constraint("DistanceY", 5, 2, 5, 1, Q("0.115 in")),
    Sketcher.Constraint("DistanceX", -1, 1, 4, 2, Q("0.53125 in")),
    Sketcher.Constraint("DistanceY", 0, 2, -1, 1, Q("1.5675 in")),
    Sketcher.Constraint("DistanceX", 4, 1, 4, 2, 1.80695),
])
pocket17 = body.newObject("PartDesign::Pocket", "Pocket016")
pocket17.Profile = sketch18
pocket17.Type = "UpToFirst"
pocket17.Reversed = True

# Sketch on XZ plane
sketch19 = body.newObject("Sketcher::SketchObject", "Sketch018")
sketch19.AttachmentSupport = (doc.getObject("XZ_Plane"), [""])
sketch19.MapMode = "FlatFace"
sketch19.AttachmentOffset = App.Placement(V(0, 0, -3), App.Rotation())
sketch19.addGeometry([
    Part.LineSegment(V(94.45625, -42.7355, 0), V(94.45625, -39.8145, 0)),  # 0
    Part.LineSegment(V(94.45625, -39.8145, 0), V(96.2632, -39.8145, 0)),  # 1
    Part.LineSegment(V(96.2632, -39.8145, 0), V(96.2632, -38.0873, 0)),  # 2
    Part.LineSegment(V(96.2632, -38.0873, 0), V(98.6, -38.0873, 0)),  # 3
    Part.LineSegment(V(98.6, -38.0873, 0), V(98.6, -39.8145, 0)),  # 4
    Part.LineSegment(V(98.6, -39.8145, 0), V(104.95, -39.8145, 0)),  # 5
    Part.LineSegment(V(104.95, -39.8145, 0), V(104.95, -42.7355, 0)),  # 6
    Part.LineSegment(V(104.95, -42.7355, 0), V(98.6, -42.7355, 0)),  # 7
    Part.LineSegment(V(98.6, -42.7355, 0), V(98.6, -44.4627, 0)),  # 8
    Part.LineSegment(V(98.6, -44.4627, 0), V(96.2632, -44.4627, 0)),  # 9
    Part.LineSegment(V(96.2632, -44.4627, 0), V(96.2632, -42.7355, 0)),  # 10
    Part.LineSegment(V(96.2632, -42.7355, 0), V(94.45625, -42.7355, 0)),  # 11
], False)
sketch19.addConstraint([
    Sketcher.Constraint("Coincident", 0, 2, 1, 1),
    Sketcher.Constraint("Coincident", 1, 2, 2, 1),
    Sketcher.Constraint("Coincident", 2, 2, 3, 1),
    Sketcher.Constraint("Coincident", 3, 2, 4, 1),
    Sketcher.Constraint("Coincident", 4, 2, 5, 1),
    Sketcher.Constraint("Coincident", 5, 2, 6, 1),
    Sketcher.Constraint("Coincident", 6, 2, 7, 1),
    Sketcher.Constraint("Coincident", 7, 2, 8, 1),
    Sketcher.Constraint("Coincident", 8, 2, 9, 1),
    Sketcher.Constraint("Coincident", 9, 2, 10, 1),
    Sketcher.Constraint("Coincident", 10, 2, 11, 1),
    Sketcher.Constraint("Coincident", 11, 2, 0, 1),
    Sketcher.Constraint("Vertical", 0),
    Sketcher.Constraint("Horizontal", 1),
    Sketcher.Constraint("Vertical", 2),
    Sketcher.Constraint("Horizontal", 3),
    Sketcher.Constraint("Vertical", 4),
    Sketcher.Constraint("Horizontal", 5),
    Sketcher.Constraint("Vertical", 6),
    Sketcher.Constraint("Horizontal", 7),
    Sketcher.Constraint("Vertical", 8),
    Sketcher.Constraint("Horizontal", 9),
    Sketcher.Constraint("Vertical", 10),
    Sketcher.Constraint("Horizontal", 11),
    Sketcher.Constraint("Horizontal", 1, 2, 4, 2),
    Sketcher.Constraint("Horizontal", 7, 2, 10, 2),
    Sketcher.Constraint("Vertical", 4, 2, 7, 2),
    Sketcher.Constraint("Vertical", 2, 2, 9, 2),
    Sketcher.Constraint("Equal", 4, 8),
    Sketcher.Constraint("DistanceX", 5, 1, 5, 2, Q("0.25 in")),
    Sketcher.Constraint("DistanceX", 3, 1, 3, 2, Q("0.092 in")),
    Sketcher.Constraint("DistanceY", 0, 1, 0, 2, Q("0.115 in")),
    Sketcher.Constraint("DistanceY", 2, 1, 2, 2, Q("0.068 in")),
    Sketcher.Constraint("DistanceX", -1, 1, 0, 2, Q("3.71875 in")),
    Sketcher.Constraint("DistanceY", 0, 2, -1, 1, Q("1.5675 in")),
    Sketcher.Constraint("DistanceX", 1, 1, 1, 2, 1.80695),
])
pocket18 = body.newObject("PartDesign::Pocket", "Pocket017")
pocket18.Profile = sketch19
pocket18.Type = "UpToFirst"
pocket18.Reversed = True

doc.recompute()
